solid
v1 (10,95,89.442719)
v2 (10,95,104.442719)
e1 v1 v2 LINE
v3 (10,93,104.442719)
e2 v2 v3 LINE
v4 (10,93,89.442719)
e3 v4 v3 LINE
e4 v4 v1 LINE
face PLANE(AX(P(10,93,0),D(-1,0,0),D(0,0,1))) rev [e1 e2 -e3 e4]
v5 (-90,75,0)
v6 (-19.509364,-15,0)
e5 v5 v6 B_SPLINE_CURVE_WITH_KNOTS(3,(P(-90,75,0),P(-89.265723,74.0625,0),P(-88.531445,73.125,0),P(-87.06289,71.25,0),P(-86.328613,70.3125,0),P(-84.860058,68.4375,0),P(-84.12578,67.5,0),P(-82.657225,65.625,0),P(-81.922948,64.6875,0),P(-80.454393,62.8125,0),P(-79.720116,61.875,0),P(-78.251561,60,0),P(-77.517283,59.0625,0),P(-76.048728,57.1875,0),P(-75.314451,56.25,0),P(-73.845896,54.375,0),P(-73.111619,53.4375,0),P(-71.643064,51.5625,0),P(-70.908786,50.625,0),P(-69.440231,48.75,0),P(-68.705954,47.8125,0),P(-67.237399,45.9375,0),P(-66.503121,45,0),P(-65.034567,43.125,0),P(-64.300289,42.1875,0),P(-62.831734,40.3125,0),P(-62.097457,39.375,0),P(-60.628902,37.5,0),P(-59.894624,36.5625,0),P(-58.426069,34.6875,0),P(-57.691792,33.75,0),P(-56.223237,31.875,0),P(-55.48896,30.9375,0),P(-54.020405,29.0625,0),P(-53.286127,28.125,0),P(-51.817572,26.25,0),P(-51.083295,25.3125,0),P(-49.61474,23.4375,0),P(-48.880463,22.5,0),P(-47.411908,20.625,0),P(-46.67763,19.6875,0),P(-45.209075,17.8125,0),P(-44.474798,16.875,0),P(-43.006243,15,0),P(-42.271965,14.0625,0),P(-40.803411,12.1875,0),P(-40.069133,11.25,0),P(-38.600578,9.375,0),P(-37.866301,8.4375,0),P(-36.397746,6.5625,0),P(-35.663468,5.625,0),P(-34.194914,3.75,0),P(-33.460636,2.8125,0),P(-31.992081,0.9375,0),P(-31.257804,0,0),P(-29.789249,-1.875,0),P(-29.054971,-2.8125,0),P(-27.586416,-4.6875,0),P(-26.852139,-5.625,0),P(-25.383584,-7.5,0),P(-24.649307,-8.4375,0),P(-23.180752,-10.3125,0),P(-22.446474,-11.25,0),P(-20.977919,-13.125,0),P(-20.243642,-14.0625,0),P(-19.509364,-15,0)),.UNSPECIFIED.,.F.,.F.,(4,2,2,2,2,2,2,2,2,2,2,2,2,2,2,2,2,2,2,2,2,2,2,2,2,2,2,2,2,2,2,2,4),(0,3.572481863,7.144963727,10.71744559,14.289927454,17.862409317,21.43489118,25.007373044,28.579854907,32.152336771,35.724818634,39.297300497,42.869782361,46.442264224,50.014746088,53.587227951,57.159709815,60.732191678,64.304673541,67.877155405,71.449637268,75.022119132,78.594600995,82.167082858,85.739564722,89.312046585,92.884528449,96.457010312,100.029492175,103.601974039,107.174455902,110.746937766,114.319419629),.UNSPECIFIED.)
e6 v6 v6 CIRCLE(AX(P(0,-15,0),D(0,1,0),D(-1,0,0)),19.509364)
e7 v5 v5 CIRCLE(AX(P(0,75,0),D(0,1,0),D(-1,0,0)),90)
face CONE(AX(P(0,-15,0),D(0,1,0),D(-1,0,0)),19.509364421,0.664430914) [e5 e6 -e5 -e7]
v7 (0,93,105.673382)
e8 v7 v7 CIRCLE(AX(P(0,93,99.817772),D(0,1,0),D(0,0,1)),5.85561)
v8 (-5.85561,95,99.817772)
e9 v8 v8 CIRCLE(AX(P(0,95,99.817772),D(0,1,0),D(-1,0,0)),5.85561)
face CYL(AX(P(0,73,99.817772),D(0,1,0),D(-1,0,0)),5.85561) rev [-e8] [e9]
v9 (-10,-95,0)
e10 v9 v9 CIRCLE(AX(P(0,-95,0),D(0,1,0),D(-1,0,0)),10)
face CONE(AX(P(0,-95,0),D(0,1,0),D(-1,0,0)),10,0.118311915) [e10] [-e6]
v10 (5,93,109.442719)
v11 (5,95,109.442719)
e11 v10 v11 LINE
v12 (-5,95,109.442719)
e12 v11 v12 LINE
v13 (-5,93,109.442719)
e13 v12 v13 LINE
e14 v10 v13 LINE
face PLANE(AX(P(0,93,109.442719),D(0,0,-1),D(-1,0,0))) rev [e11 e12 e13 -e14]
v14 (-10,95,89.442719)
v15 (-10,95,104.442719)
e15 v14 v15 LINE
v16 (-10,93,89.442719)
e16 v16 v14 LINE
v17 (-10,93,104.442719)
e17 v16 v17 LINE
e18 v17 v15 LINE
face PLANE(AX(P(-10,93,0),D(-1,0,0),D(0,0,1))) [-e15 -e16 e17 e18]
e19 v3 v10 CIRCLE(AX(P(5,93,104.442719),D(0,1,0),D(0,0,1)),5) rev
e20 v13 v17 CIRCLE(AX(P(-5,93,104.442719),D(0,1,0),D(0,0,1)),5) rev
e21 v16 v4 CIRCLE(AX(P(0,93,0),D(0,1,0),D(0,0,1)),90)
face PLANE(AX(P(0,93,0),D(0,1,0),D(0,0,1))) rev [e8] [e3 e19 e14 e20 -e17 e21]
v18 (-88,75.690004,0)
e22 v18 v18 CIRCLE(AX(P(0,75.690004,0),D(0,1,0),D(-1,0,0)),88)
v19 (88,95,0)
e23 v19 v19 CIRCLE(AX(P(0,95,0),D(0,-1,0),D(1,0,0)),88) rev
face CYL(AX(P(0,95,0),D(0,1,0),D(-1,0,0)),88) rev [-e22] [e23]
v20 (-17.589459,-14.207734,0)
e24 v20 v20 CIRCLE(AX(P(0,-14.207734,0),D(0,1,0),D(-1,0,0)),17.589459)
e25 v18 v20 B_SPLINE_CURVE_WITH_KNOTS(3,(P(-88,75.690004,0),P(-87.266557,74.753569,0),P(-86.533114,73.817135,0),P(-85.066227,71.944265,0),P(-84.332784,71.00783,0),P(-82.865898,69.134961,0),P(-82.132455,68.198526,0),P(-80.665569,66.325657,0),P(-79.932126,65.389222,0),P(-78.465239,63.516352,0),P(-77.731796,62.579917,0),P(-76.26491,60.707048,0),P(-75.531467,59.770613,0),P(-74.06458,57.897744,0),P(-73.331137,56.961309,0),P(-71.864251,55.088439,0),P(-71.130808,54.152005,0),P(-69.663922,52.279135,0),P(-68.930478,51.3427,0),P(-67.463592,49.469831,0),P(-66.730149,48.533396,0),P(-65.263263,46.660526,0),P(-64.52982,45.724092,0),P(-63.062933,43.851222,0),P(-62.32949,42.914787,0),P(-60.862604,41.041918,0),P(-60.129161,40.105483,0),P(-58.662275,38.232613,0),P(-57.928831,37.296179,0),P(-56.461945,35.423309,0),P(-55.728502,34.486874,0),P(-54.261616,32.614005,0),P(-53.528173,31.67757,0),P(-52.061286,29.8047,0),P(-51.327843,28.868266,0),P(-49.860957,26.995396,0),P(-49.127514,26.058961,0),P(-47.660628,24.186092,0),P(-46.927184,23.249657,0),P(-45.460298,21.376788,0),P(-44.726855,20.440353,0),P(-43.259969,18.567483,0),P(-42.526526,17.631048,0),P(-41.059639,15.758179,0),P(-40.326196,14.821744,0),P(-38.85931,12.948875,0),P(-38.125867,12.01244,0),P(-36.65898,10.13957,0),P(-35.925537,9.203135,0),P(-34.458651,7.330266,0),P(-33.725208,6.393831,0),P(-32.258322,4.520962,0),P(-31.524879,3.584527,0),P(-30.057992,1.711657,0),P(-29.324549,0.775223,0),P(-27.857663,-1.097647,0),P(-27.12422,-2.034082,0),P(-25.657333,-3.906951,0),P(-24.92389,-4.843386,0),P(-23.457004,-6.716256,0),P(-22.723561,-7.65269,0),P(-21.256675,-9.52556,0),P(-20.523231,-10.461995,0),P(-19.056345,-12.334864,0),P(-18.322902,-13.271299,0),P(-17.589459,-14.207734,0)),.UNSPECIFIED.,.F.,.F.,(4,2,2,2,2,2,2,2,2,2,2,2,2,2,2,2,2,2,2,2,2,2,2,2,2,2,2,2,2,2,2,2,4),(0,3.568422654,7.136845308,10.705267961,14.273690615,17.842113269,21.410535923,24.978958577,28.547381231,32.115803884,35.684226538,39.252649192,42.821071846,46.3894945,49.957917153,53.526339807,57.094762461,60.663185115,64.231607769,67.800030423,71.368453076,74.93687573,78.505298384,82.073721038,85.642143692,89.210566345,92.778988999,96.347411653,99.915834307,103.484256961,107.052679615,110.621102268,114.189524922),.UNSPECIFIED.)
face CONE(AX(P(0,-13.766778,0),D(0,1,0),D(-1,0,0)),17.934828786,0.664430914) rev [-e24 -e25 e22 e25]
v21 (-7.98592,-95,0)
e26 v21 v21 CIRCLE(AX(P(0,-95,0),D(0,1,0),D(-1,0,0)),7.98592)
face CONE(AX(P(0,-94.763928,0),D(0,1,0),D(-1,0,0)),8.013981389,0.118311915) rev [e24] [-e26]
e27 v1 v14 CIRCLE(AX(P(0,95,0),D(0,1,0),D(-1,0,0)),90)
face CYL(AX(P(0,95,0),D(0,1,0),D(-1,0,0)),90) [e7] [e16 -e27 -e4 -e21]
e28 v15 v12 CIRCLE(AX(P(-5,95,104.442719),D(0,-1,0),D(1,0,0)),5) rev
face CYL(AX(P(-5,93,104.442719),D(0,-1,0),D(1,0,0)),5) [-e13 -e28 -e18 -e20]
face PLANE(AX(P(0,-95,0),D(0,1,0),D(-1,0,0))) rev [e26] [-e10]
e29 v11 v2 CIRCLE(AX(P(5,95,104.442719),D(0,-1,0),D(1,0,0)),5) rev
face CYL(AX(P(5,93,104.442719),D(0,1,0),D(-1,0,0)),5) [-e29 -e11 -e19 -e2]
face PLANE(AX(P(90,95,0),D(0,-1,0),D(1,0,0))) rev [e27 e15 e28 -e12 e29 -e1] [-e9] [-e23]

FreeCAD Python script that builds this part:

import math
import FreeCAD as App
import Part
import Sketcher


def edges_at(feature, points):
    """Names of the edges that pass closest to the given points."""
    edges = feature.Shape.Edges
    near = lambda p: min(range(len(edges)), key=lambda i: edges[i].distToShape(Part.Vertex(*p))[0])
    return sorted({f"Edge{near(p) + 1}" for p in points})


def faces_at(feature, points):
    """Names of the faces that lie closest to the given points."""
    faces = feature.Shape.Faces
    near = lambda p: min(range(len(faces)), key=lambda i: faces[i].distToShape(Part.Vertex(*p))[0])
    return sorted({f"Face{near(p) + 1}" for p in points})


def add_polygon(sketch, points):
    """Adds a closed chain of lines whose ends are joined by coincident constraints."""
    first, n = sketch.GeometryCount, len(points)
    for a, b in zip(points, points[1:] + points[:1]):
        sketch.addGeometry(Part.LineSegment(App.Vector(*a, 0), App.Vector(*b, 0)), False)
    for i in range(n):
        sketch.addConstraint(Sketcher.Constraint("Coincident", first + i, 2, first + (i + 1) % n, 1))

doc = App.newDocument("Part")
params = doc.addObject("Spreadsheet::Sheet", "Params")
for row, (alias, value) in enumerate([
    ("sketch1_width", "10 mm"),
    ("sketch1_width2", "90 mm"),
    ("sketch1_height", "190 mm"),
    ("sketch1_height2", "20 mm"),
    ("revolution_angle", "360 deg"),
    ("thickness_wall", "2 mm"),
    ("sketch2_radius", "90 mm"),
    ("sketch2_width", "20 mm"),
    ("pad1_length", "2 mm"),
    ("pocket1_length", "22 mm"),
    ("fillet_radius", "5 mm"),
], start=1):
    params.set(f"A{row}", alias)
    params.set(f"B{row}", "=" + value)
    params.setAlias(f"B{row}", alias)

body = doc.addObject("PartDesign::Body", "Body")

# Sketch on XY plane
sketch1 = body.newObject("Sketcher::SketchObject", "Sketch")
sketch1.AttachmentSupport = (doc.getObject("XY_Plane"), [""])
sketch1.MapMode = "FlatFace"
add_polygon(sketch1, [(0, 95), (0, -95), (10, -95), (20, -15), (90, 75), (90, 95)])  # lines 0-5
sketch1.addConstraint(Sketcher.Constraint("Vertical", 0))
sketch1.addConstraint(Sketcher.Constraint("Horizontal", 1))
sketch1.addConstraint(Sketcher.Constraint("Vertical", 4))
sketch1.addConstraint(Sketcher.Constraint("Horizontal", 5))
sketch1.addConstraint(Sketcher.Constraint("Symmetric", 0, 2, 5, 2, -1, 1))
sketch1.addConstraint(Sketcher.Constraint("DistanceX", 1, 1, 1, 2, 10.0))
sketch1.addConstraint(Sketcher.Constraint("DistanceX", 5, 2, 5, 1, 90.0))
sketch1.addConstraint(Sketcher.Constraint("DistanceY", 0, 2, 0, 1, 190.0))
sketch1.addConstraint(Sketcher.Constraint("DistanceY", 4, 1, 4, 2, 20.0))
sketch1.addConstraint(Sketcher.Constraint("DistanceY", 2, 2, -1, 1, 15.0))
sketch1.addConstraint(Sketcher.Constraint("Distance", 3, 114.31942))
sketch1.setExpression("Constraints[11]", "Params.sketch1_width")
sketch1.setExpression("Constraints[12]", "Params.sketch1_width2")
sketch1.setExpression("Constraints[13]", "Params.sketch1_height")
sketch1.setExpression("Constraints[14]", "Params.sketch1_height2")
revolution = body.newObject("PartDesign::Revolution", "Revolution")
revolution.Profile = sketch1
revolution.ReferenceAxis = (sketch1, ["V_Axis"])
revolution.setExpression("Angle", "Params.revolution_angle")
doc.recompute()

thickness = body.newObject("PartDesign::Thickness", "Thickness")
thickness.Base = (revolution, faces_at(revolution, [(0, -95, 0), (0, 95, 0)]))
thickness.setExpression("Value", "Params.thickness_wall")
thickness.Reversed = True
thickness.Join = "Intersection"

# Sketch on XZ plane
sketch2 = body.newObject("Sketcher::SketchObject", "Sketch001")
sketch2.AttachmentSupport = (doc.getObject("XZ_Plane"), [""])
sketch2.MapMode = "FlatFace"
sketch2.AttachmentOffset = App.Placement(App.Vector(0, 0, -95), App.Rotation())
sketch2.addGeometry(Part.ArcOfCircle(Part.Circle(App.Vector(0, 0, 0), App.Vector(0, 0, 1), 90), math.radians(90), math.radians(96.38)), False)
sketch2.addGeometry(Part.LineSegment(App.Vector(-10, 89, 0), App.Vector(-10, 109, 0)), False)
sketch2.addGeometry(Part.LineSegment(App.Vector(-10, 109, 0), App.Vector(10, 109, 0)), False)
sketch2.addGeometry(Part.LineSegment(App.Vector(10, 109, 0), App.Vector(10, 89, 0)), False)
sketch2.addGeometry(Part.ArcOfCircle(Part.Circle(App.Vector(0, 0, 0), App.Vector(0, 0, 1), 90), math.radians(83.62), math.radians(90)), False)
sketch2.addConstraint(Sketcher.Constraint("Coincident", 0, 2, 1, 1))
sketch2.addConstraint(Sketcher.Constraint("Coincident", 1, 2, 2, 1))
sketch2.addConstraint(Sketcher.Constraint("Coincident", 2, 2, 3, 1))
sketch2.addConstraint(Sketcher.Constraint("Coincident", 3, 2, 4, 1))
sketch2.addConstraint(Sketcher.Constraint("Tangent", 4, 2, 0, 1))
sketch2.addConstraint(Sketcher.Constraint("Vertical", 1))
sketch2.addConstraint(Sketcher.Constraint("Horizontal", 2))
sketch2.addConstraint(Sketcher.Constraint("Vertical", 3))
sketch2.addConstraint(Sketcher.Constraint("Coincident", 0, 3, -1, 1))
sketch2.addConstraint(Sketcher.Constraint("Equal", 0, 4))
sketch2.addConstraint(Sketcher.Constraint("PointOnObject", 4, 2, -2))
sketch2.addConstraint(Sketcher.Constraint("Horizontal", 0, 2, 3, 2))
sketch2.addConstraint(Sketcher.Constraint("Equal", 2, 1))
sketch2.addConstraint(Sketcher.Constraint("Radius", 0, 90.0))
sketch2.addConstraint(Sketcher.Constraint("DistanceX", 2, 1, 2, 2, 20.0))
sketch2.setExpression("Constraints[13]", "Params.sketch2_radius")
sketch2.setExpression("Constraints[14]", "Params.sketch2_width")
pad1 = body.newObject("PartDesign::Pad", "Pad")
pad1.Profile = sketch2
pad1.setExpression("Length", "Params.pad1_length")

# Sketch on XZ plane
sketch3 = body.newObject("Sketcher::SketchObject", "Sketch002")
sketch3.AttachmentSupport = (doc.getObject("XZ_Plane"), [""])
sketch3.MapMode = "FlatFace"
sketch3.AttachmentOffset = App.Placement(App.Vector(0, 0, -95), App.Rotation())
sketch3.addGeometry(Part.Circle(App.Vector(0, 100, 0), App.Vector(0, 0, 1), 6), False)
sketch3.addConstraint(Sketcher.Constraint("PointOnObject", 0, 3, -2))
sketch3.addConstraint(Sketcher.Constraint("Diameter", 0, 11.71122))
sketch3.addConstraint(Sketcher.Constraint("DistanceY", -1, 1, 0, 3, 99.817772))
pocket1 = body.newObject("PartDesign::Pocket", "Pocket")
pocket1.Profile = sketch3
pocket1.setExpression("Length", "Params.pocket1_length")
pocket1.Reversed = True
doc.recompute()

fillet = body.newObject("PartDesign::Fillet", "Fillet")
fillet.Base = (pocket1, edges_at(pocket1, [(10, 94, 109.443), (-10, 94, 109.443)]))
fillet.setExpression("Radius", "Params.fillet_radius")

doc.recompute()
